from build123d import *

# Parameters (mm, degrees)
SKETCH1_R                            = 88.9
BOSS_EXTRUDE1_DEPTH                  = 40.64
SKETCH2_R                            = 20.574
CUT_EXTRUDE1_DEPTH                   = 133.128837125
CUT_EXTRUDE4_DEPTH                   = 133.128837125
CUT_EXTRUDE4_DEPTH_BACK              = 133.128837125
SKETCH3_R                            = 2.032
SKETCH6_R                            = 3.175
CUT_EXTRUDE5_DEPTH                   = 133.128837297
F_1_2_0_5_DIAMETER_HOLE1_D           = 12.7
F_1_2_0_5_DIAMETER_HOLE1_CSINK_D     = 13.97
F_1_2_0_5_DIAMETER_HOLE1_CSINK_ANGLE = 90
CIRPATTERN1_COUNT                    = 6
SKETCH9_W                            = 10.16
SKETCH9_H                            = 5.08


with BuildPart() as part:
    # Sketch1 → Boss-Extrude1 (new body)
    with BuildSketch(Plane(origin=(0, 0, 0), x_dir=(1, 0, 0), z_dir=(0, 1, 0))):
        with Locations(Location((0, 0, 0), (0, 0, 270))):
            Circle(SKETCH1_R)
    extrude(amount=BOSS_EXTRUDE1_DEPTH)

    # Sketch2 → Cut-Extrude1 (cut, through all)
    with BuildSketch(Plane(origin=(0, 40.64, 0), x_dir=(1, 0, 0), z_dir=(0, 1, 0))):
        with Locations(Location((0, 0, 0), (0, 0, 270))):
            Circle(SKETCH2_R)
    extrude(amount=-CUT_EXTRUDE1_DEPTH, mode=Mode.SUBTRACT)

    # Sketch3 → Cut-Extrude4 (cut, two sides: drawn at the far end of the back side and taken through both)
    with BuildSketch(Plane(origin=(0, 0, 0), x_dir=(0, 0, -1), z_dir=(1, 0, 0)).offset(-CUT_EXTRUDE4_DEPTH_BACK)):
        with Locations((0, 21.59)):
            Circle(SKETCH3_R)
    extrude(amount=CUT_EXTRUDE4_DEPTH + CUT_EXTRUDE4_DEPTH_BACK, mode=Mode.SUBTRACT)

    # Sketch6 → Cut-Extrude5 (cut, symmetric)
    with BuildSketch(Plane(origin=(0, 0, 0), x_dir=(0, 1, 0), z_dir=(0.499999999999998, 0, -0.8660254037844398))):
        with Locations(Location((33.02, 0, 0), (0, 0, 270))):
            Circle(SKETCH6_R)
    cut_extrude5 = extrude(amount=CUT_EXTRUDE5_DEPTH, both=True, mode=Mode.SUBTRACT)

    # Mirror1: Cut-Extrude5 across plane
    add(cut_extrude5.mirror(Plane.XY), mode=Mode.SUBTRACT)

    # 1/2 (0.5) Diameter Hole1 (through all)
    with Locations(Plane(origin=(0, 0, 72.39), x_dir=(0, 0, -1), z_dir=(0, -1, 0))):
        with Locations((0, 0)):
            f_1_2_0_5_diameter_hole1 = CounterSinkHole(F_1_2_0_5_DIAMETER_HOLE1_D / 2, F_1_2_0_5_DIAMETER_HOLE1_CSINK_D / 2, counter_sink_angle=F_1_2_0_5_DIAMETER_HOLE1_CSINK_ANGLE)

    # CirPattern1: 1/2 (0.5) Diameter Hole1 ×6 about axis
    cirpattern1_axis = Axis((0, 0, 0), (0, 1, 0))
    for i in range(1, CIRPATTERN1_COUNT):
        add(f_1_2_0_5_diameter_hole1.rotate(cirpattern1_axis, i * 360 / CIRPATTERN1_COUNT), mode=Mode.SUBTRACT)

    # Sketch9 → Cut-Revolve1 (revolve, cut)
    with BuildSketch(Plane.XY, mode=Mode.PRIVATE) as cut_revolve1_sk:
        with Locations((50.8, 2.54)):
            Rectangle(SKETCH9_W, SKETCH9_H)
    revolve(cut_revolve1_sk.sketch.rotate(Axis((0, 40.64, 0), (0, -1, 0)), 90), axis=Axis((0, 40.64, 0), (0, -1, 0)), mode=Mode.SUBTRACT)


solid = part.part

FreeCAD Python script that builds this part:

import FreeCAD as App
import Part
import Sketcher
from FreeCAD import Vector
Q = App.Units.Quantity


def add_polygon(sketch, points):
    """Adds a closed chain of lines whose ends are joined by coincident constraints."""
    first, n = sketch.GeometryCount, len(points)
    for a, b in zip(points, points[1:] + points[:1]):
        sketch.addGeometry(Part.LineSegment(App.Vector(*a, 0), App.Vector(*b, 0)), False)
    for i in range(n):
        sketch.addConstraint(Sketcher.Constraint("Coincident", first + i, 2, first + (i + 1) % n, 1))

doc = App.newDocument("Part")
body = doc.addObject("PartDesign::Body", "Body")

sketch1 = body.newObject("Sketcher::SketchObject", "Sketch")
sketch1.AttachmentSupport = (doc.getObject("XZ_Plane"), [""])
sketch1.MapMode = "FlatFace"
sketch1.addGeometry(Part.Circle(Vector(0, 0, 0), Vector(0, 0, 1), 89), False)
sketch1.addConstraint([
    Sketcher.Constraint("Coincident", 0, 3, -1, 1),
    Sketcher.Constraint("Diameter", 0, Q("7 in")),
])
pad1 = body.newObject("PartDesign::Pad", "Pad")
pad1.Profile = sketch1
pad1.Length = Q("1.6 in")
pad1.Reversed = True

sketch2 = body.newObject("Sketcher::SketchObject", "Sketch001")
sketch2.AttachmentSupport = (doc.getObject("XZ_Plane"), [""])
sketch2.MapMode = "FlatFace"
sketch2.AttachmentOffset = App.Placement(Vector(0, 0, -1.6 * 25.4), App.Rotation())
sketch2.addGeometry(Part.Circle(Vector(0, 0, 0), Vector(0, 0, 1), 21), False)
sketch2.addConstraint([
    Sketcher.Constraint("Coincident", 0, 3, -1, 1),
    Sketcher.Constraint("Diameter", 0, Q("1.62 in")),
])
pocket1 = body.newObject("PartDesign::Pocket", "Pocket")
pocket1.Profile = sketch2
pocket1.Type = "ThroughAll"
pocket1.Reversed = True

sketch3 = body.newObject("Sketcher::SketchObject", "Sketch002")
sketch3.AttachmentSupport = (doc.getObject("YZ_Plane"), [""])
sketch3.MapMode = "FlatFace"
sketch3.addGeometry(Part.Circle(Vector(21.6, 0, 0), Vector(0, 0, 1), 2), False)
sketch3.addConstraint([
    Sketcher.Constraint("PointOnObject", 0, 3, -1),
    Sketcher.Constraint("Diameter", 0, Q("0.16 in")),
    Sketcher.Constraint("DistanceX", -1, 1, 0, 3, Q("0.85 in")),
])
pocket2 = body.newObject("PartDesign::Pocket", "Pocket001")
pocket2.Profile = sketch3
pocket2.Type = "ThroughAll"
pocket2.Midplane = True

sketch4 = body.newObject("Sketcher::SketchObject", "Sketch003")
sketch4.Placement = App.Placement(Vector(0, 0, 0), App.Rotation(Vector(0, 1, 0), Vector(0.866025404, 0, 0.5), Vector(0.5, 0, -0.866025404), "ZXY"))
sketch4.addGeometry(Part.Circle(Vector(33, 0, 0), Vector(0, 0, 1), 3.2), False)
sketch4.addConstraint([
    Sketcher.Constraint("PointOnObject", 0, 3, -1),
    Sketcher.Constraint("Diameter", 0, Q("0.25 in")),
    Sketcher.Constraint("DistanceX", -1, 1, 0, 3, Q("1.3 in")),
])
pocket3 = body.newObject("PartDesign::Pocket", "Pocket002")
pocket3.Profile = sketch4
pocket3.Length = 266.257675
pocket3.Midplane = True
doc.recompute()

mirrored = body.newObject("PartDesign::Mirrored", "Mirrored")
mirrored.Originals = [pocket3]
mirrored.MirrorPlane = (doc.getObject("XY_Plane"), [""])
body.Tip = mirrored

sketch5 = body.newObject("Sketcher::SketchObject", "Sketch004")
sketch5.AttachmentSupport = (doc.getObject("XZ_Plane"), [""])
sketch5.MapMode = "FlatFace"
sketch5.addGeometry(Part.Circle(Vector(0, 72, 0), Vector(0, 0, 1), 6), False)
sketch5.addConstraint([
    Sketcher.Constraint("PointOnObject", 0, 3, -2),
    Sketcher.Constraint("Diameter", 0, Q("0.5 in")),
    Sketcher.Constraint("DistanceY", -1, 1, 0, 3, Q("2.85 in")),
])
doc.recompute()
hole = body.newObject("PartDesign::Hole", "Hole")
hole.Profile = sketch5
hole.ThreadType = "None"
hole.Diameter = Q("0.5 in")
hole.DepthType = "ThroughAll"
hole.HoleCutType = "Countersink"
hole.HoleCutDiameter = Q("0.55 in")
hole.HoleCutCountersinkAngle = 90
doc.recompute()

polarpattern = body.newObject("PartDesign::PolarPattern", "PolarPattern")
polarpattern.Originals = [hole]
polarpattern.Axis = (doc.getObject("Y_Axis"), [""])
polarpattern.Angle = 360
polarpattern.Occurrences = 6
body.Tip = polarpattern

sketch6 = body.newObject("Sketcher::SketchObject", "Sketch005")
sketch6.AttachmentSupport = (doc.getObject("XY_Plane"), [""])
sketch6.MapMode = "FlatFace"
add_polygon(sketch6, [(46, 5), (46, 0), (56, 0), (56, 5)])
sketch6.addConstraint([
    Sketcher.Constraint("Vertical", 0),
    Sketcher.Constraint("Horizontal", 1),
    Sketcher.Constraint("Vertical", 2),
    Sketcher.Constraint("Horizontal", 3),
    Sketcher.Constraint("PointOnObject", 0, 2, -1),
    Sketcher.Constraint("DistanceX", 1, 1, 1, 2, Q("0.4 in")),
    Sketcher.Constraint("DistanceY", 0, 2, 0, 1, Q("0.2 in")),
    Sketcher.Constraint("DistanceX", -1, 1, 0, 2, Q("1.8 in")),
])
groove = body.newObject("PartDesign::Groove", "Groove")
groove.Profile = sketch6
groove.ReferenceAxis = (sketch6, ["V_Axis"])
groove.Angle = 360

doc.recompute()
